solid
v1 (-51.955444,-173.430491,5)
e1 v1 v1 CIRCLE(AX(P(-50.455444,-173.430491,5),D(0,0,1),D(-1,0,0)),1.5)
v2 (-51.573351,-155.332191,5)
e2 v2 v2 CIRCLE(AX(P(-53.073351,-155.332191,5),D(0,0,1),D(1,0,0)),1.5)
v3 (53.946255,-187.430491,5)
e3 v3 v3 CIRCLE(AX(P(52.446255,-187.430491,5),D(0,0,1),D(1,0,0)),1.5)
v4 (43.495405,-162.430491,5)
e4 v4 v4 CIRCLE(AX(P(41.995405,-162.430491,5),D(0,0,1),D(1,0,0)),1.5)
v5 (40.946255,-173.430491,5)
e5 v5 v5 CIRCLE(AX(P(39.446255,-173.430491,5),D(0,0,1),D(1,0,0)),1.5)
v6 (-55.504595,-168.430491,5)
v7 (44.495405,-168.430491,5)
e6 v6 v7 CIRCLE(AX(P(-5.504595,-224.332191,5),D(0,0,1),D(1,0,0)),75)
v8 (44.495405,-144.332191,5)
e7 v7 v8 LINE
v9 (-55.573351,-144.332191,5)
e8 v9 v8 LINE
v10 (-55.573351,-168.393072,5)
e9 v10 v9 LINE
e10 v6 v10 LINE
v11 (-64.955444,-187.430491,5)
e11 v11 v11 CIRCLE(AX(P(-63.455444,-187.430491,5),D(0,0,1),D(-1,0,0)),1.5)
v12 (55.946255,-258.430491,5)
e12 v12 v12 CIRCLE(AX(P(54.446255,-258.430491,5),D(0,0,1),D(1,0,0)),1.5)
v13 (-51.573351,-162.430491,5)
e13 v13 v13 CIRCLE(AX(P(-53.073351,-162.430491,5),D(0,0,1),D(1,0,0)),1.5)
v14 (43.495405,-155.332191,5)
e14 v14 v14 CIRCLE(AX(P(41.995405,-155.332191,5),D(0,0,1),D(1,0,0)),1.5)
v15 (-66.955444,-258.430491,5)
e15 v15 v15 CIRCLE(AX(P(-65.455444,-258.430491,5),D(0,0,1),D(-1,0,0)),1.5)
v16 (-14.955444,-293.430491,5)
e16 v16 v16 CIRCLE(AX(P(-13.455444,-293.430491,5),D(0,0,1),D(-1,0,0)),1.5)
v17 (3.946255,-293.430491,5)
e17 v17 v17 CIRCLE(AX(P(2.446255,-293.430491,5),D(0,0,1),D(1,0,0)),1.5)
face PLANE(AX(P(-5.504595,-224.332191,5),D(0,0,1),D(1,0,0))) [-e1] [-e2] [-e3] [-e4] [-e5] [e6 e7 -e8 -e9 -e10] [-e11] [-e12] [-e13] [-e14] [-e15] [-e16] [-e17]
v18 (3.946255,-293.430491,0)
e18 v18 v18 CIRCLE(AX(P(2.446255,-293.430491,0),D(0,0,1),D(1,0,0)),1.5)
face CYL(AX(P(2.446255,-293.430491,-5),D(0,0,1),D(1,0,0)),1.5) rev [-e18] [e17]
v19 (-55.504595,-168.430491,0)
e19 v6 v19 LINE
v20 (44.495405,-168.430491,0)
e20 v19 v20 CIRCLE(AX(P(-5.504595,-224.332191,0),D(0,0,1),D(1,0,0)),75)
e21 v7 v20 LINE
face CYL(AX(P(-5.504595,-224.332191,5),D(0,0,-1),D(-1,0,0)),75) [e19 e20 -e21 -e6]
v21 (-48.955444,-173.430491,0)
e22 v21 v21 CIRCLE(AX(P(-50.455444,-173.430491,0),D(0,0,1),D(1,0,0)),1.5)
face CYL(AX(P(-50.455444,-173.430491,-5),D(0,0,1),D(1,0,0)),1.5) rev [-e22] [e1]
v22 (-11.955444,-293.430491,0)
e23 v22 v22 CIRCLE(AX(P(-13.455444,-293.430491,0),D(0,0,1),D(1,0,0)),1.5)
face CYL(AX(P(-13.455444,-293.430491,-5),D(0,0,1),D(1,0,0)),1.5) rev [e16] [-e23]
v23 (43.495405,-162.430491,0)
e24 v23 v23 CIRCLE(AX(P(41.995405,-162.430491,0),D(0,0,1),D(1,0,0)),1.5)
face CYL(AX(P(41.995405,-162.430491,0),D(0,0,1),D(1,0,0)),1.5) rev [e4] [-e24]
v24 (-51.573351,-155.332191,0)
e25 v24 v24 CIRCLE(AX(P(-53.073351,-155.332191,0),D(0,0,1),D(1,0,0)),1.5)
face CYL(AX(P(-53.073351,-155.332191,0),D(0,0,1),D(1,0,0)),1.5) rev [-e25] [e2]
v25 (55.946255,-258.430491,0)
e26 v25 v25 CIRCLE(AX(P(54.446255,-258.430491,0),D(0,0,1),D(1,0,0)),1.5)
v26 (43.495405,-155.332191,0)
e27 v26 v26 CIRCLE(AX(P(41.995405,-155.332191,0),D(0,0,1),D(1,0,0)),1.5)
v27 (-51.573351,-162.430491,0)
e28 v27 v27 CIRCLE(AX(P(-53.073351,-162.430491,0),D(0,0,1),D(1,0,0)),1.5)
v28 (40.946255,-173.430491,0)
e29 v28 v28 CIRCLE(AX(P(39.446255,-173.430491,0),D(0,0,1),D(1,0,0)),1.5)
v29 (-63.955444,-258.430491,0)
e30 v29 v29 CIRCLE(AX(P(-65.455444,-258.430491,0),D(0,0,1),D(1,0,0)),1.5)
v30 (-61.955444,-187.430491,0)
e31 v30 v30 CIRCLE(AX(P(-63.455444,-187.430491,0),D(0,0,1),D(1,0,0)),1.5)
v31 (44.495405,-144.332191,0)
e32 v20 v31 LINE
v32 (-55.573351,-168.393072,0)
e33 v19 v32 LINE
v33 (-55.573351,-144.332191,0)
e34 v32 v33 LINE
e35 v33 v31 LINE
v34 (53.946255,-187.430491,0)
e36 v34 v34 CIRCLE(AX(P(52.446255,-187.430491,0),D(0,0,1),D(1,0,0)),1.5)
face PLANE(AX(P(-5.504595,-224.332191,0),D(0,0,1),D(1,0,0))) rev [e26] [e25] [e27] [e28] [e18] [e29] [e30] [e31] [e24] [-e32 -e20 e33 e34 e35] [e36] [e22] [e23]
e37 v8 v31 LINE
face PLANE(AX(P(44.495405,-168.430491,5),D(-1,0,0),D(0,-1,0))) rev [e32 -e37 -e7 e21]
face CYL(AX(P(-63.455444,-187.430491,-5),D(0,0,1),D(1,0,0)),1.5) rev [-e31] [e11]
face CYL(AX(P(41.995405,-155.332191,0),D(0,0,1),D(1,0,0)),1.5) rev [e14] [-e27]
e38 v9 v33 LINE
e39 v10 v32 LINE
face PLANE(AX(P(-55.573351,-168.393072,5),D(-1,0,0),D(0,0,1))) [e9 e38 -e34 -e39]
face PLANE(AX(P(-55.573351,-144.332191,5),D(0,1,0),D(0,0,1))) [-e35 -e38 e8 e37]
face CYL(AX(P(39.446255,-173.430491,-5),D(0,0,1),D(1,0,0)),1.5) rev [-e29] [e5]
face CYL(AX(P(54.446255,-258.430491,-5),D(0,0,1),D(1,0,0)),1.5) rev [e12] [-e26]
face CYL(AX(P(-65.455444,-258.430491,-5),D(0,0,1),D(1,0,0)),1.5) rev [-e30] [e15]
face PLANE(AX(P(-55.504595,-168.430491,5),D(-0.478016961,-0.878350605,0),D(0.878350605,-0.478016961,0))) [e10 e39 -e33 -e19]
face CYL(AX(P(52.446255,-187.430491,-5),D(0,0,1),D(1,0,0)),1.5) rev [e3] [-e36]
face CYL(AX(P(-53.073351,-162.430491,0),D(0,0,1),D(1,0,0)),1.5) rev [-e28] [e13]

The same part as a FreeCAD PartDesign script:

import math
import FreeCAD as App
import Part
import Sketcher

V = App.Vector
Q = App.Units.Quantity

doc = App.newDocument("Part")
params = doc.addObject("Spreadsheet::Sheet", "Params")
for row, (alias, value) in enumerate([
    ("sketch1_radius", "75 mm"),
    ("pad1_length", "5 mm"),
    ("sketch2_diameter", "3 mm"),
    ("pocket1_length", "10 mm"),
    ("sketch3_diameter", "3 mm"),
], start=1):
    params.set(f"A{row}", alias)
    params.set(f"B{row}", "=" + value)
    params.setAlias(f"B{row}", alias)

body = doc.addObject("PartDesign::Body", "Body")

sketch1 = body.newObject("Sketcher::SketchObject", "Sketch")
sketch1.AttachmentSupport = (doc.getObject("XY_Plane"), [""])
sketch1.MapMode = "FlatFace"
sketch1.addGeometry([
    Part.LineSegment(V(44.495405, -168.430491, 0), V(44.495405, -144.332191, 0)),
    Part.LineSegment(V(44.495405, -144.332191, 0), V(-55.573351, -144.332191, 0)),
    Part.LineSegment(V(-55.573351, -144.332191, 0), V(-55.573351, -168.393072, 0)),
    Part.LineSegment(V(-55.573351, -168.393072, 0), V(-55.504595, -168.430491, 0)),
    Part.ArcOfCircle(Part.Circle(V(-5.504595, -224.332191, 0), V(0, 0, 1), 75), math.radians(131.810315), math.radians(408.189685)),
], False)
sketch1.addConstraint([
    Sketcher.Constraint("Coincident", 0, 2, 1, 1),
    Sketcher.Constraint("Coincident", 1, 2, 2, 1),
    Sketcher.Constraint("Coincident", 2, 2, 3, 1),
    Sketcher.Constraint("Coincident", 3, 2, 4, 1),
    Sketcher.Constraint("Coincident", 4, 2, 0, 1),
    Sketcher.Constraint("Vertical", 0),
    Sketcher.Constraint("Horizontal", 1),
    Sketcher.Constraint("Vertical", 2),
    Sketcher.Constraint("Horizontal", 3, 2, 4, 2),
    Sketcher.Constraint("Radius", 4, Q("75 mm")),
    Sketcher.Constraint("DistanceX", 4, 3, 0, 2, Q("50 mm")),
    Sketcher.Constraint("DistanceY", 4, 3, 0, 2, Q("80 mm")),
    Sketcher.Constraint("DistanceY", 2, 2, 2, 1, Q("24.060882 mm")),
    Sketcher.Constraint("Distance", 3, Q("0.07828 mm")),
    Sketcher.Constraint("DistanceY", 4, 3, -1, 1, Q("224.332191 mm")),
    Sketcher.Constraint("DistanceX", 1, 2, -1, 1, Q("55.573351 mm")),
])
sketch1.setExpression("Constraints[9]", "Params.sketch1_radius")
pad1 = body.newObject("PartDesign::Pad", "Pad")
pad1.Profile = sketch1
pad1.setExpression("Length", "Params.pad1_length")

sketch2 = body.newObject("Sketcher::SketchObject", "Sketch001")
sketch2.AttachmentSupport = (doc.getObject("XY_Plane"), [""])
sketch2.MapMode = "FlatFace"
sketch2.AttachmentOffset = App.Placement(V(0, 0, 5), App.Rotation())
sketch2.addGeometry([
    Part.Circle(V(39.4, -173.4, 0), V(0, 0, 1), 1.5),
    Part.Circle(V(52.4, -187.4, 0), V(0, 0, 1), 1.5),
    Part.Circle(V(54.4, -258.4, 0), V(0, 0, 1), 1.5),
    Part.Circle(V(-13.5, -293.4, 0), V(0, 0, 1), 1.5),
    Part.Circle(V(2.4, -293.4, 0), V(0, 0, 1), 1.5),
    Part.Circle(V(-65.5, -258.4, 0), V(0, 0, 1), 1.5),
    Part.Circle(V(-63.5, -187.4, 0), V(0, 0, 1), 1.5),
    Part.Circle(V(-50.5, -173.4, 0), V(0, 0, 1), 1.5),
], False)
sketch2.addConstraint([
    Sketcher.Constraint("Equal", 0, 1),
    Sketcher.Constraint("Equal", 1, 2),
    Sketcher.Constraint("Equal", 2, 3),
    Sketcher.Constraint("Equal", 3, 4),
    Sketcher.Constraint("Equal", 4, 5),
    Sketcher.Constraint("Equal", 5, 6),
    Sketcher.Constraint("Equal", 6, 7),
    Sketcher.Constraint("Horizontal", 3, 3, 4, 3),
    Sketcher.Constraint("Horizontal", 2, 3, 5, 3),
    Sketcher.Constraint("Horizontal", 1, 3, 6, 3),
    Sketcher.Constraint("Horizontal", 0, 3, 7, 3),
    Sketcher.Constraint("Diameter", 0, Q("3 mm")),
    Sketcher.Constraint("DistanceX", 0, 3, 1, 3, Q("13 mm")),
    Sketcher.Constraint("DistanceY", 1, 3, 0, 3, Q("14 mm")),
    Sketcher.Constraint("DistanceX", 1, 3, 2, 3, Q("2 mm")),
    Sketcher.Constraint("DistanceY", 2, 3, 1, 3, Q("71 mm")),
    Sketcher.Constraint("DistanceY", 3, 3, 2, 3, Q("35 mm")),
    Sketcher.Constraint("DistanceX", 4, 3, 2, 3, Q("52 mm")),
    Sketcher.Constraint("DistanceX", 5, 3, 3, 3, Q("52 mm")),
    Sketcher.Constraint("DistanceX", 5, 3, 6, 3, Q("2 mm")),
    Sketcher.Constraint("DistanceX", 6, 3, 7, 3, Q("13 mm")),
    Sketcher.Constraint("DistanceX", 3, 3, 2, 3, Q("67.901699 mm")),
    Sketcher.Constraint("DistanceY", 0, 3, -1, 1, Q("173.430491 mm")),
    Sketcher.Constraint("DistanceX", -1, 1, 0, 3, Q("39.446255 mm")),
])
sketch2.setExpression("Constraints[11]", "Params.sketch2_diameter")
pocket1 = body.newObject("PartDesign::Pocket", "Pocket")
pocket1.Profile = sketch2
pocket1.setExpression("Length", "Params.pocket1_length")

sketch3 = body.newObject("Sketcher::SketchObject", "Sketch002")
sketch3.AttachmentSupport = (doc.getObject("XY_Plane"), [""])
sketch3.MapMode = "FlatFace"
sketch3.AttachmentOffset = App.Placement(V(0, 0, 5), App.Rotation())
sketch3.addGeometry([
    Part.Circle(V(-53.1, -162.4, 0), V(0, 0, 1), 1.5),
    Part.Circle(V(-53.1, -155.3, 0), V(0, 0, 1), 1.5),
    Part.Circle(V(42, -162.4, 0), V(0, 0, 1), 1.5),
    Part.Circle(V(42, -155.3, 0), V(0, 0, 1), 1.5),
], False)
sketch3.addConstraint([
    Sketcher.Constraint("Equal", 0, 1),
    Sketcher.Constraint("Equal", 1, 2),
    Sketcher.Constraint("Equal", 2, 3),
    Sketcher.Constraint("Horizontal", 0, 3, 2, 3),
    Sketcher.Constraint("Horizontal", 1, 3, 3, 3),
    Sketcher.Constraint("Vertical", 0, 3, 1, 3),
    Sketcher.Constraint("Vertical", 2, 3, 3, 3),
    Sketcher.Constraint("Diameter", 0, Q("3 mm")),
    Sketcher.Constraint("DistanceY", 0, 3, 1, 3, Q("7.098301 mm")),
    Sketcher.Constraint("DistanceX", 0, 3, -1, 1, Q("53.073351 mm")),
    Sketcher.Constraint("DistanceY", 0, 3, -1, 1, Q("162.430491 mm")),
    Sketcher.Constraint("DistanceX", -1, 1, 2, 3, Q("41.995405 mm")),
])
sketch3.setExpression("Constraints[7]", "Params.sketch3_diameter")
pocket2 = body.newObject("PartDesign::Pocket", "Pocket001")
pocket2.Profile = sketch3
pocket2.Type = "ThroughAll"

doc.recompute()
